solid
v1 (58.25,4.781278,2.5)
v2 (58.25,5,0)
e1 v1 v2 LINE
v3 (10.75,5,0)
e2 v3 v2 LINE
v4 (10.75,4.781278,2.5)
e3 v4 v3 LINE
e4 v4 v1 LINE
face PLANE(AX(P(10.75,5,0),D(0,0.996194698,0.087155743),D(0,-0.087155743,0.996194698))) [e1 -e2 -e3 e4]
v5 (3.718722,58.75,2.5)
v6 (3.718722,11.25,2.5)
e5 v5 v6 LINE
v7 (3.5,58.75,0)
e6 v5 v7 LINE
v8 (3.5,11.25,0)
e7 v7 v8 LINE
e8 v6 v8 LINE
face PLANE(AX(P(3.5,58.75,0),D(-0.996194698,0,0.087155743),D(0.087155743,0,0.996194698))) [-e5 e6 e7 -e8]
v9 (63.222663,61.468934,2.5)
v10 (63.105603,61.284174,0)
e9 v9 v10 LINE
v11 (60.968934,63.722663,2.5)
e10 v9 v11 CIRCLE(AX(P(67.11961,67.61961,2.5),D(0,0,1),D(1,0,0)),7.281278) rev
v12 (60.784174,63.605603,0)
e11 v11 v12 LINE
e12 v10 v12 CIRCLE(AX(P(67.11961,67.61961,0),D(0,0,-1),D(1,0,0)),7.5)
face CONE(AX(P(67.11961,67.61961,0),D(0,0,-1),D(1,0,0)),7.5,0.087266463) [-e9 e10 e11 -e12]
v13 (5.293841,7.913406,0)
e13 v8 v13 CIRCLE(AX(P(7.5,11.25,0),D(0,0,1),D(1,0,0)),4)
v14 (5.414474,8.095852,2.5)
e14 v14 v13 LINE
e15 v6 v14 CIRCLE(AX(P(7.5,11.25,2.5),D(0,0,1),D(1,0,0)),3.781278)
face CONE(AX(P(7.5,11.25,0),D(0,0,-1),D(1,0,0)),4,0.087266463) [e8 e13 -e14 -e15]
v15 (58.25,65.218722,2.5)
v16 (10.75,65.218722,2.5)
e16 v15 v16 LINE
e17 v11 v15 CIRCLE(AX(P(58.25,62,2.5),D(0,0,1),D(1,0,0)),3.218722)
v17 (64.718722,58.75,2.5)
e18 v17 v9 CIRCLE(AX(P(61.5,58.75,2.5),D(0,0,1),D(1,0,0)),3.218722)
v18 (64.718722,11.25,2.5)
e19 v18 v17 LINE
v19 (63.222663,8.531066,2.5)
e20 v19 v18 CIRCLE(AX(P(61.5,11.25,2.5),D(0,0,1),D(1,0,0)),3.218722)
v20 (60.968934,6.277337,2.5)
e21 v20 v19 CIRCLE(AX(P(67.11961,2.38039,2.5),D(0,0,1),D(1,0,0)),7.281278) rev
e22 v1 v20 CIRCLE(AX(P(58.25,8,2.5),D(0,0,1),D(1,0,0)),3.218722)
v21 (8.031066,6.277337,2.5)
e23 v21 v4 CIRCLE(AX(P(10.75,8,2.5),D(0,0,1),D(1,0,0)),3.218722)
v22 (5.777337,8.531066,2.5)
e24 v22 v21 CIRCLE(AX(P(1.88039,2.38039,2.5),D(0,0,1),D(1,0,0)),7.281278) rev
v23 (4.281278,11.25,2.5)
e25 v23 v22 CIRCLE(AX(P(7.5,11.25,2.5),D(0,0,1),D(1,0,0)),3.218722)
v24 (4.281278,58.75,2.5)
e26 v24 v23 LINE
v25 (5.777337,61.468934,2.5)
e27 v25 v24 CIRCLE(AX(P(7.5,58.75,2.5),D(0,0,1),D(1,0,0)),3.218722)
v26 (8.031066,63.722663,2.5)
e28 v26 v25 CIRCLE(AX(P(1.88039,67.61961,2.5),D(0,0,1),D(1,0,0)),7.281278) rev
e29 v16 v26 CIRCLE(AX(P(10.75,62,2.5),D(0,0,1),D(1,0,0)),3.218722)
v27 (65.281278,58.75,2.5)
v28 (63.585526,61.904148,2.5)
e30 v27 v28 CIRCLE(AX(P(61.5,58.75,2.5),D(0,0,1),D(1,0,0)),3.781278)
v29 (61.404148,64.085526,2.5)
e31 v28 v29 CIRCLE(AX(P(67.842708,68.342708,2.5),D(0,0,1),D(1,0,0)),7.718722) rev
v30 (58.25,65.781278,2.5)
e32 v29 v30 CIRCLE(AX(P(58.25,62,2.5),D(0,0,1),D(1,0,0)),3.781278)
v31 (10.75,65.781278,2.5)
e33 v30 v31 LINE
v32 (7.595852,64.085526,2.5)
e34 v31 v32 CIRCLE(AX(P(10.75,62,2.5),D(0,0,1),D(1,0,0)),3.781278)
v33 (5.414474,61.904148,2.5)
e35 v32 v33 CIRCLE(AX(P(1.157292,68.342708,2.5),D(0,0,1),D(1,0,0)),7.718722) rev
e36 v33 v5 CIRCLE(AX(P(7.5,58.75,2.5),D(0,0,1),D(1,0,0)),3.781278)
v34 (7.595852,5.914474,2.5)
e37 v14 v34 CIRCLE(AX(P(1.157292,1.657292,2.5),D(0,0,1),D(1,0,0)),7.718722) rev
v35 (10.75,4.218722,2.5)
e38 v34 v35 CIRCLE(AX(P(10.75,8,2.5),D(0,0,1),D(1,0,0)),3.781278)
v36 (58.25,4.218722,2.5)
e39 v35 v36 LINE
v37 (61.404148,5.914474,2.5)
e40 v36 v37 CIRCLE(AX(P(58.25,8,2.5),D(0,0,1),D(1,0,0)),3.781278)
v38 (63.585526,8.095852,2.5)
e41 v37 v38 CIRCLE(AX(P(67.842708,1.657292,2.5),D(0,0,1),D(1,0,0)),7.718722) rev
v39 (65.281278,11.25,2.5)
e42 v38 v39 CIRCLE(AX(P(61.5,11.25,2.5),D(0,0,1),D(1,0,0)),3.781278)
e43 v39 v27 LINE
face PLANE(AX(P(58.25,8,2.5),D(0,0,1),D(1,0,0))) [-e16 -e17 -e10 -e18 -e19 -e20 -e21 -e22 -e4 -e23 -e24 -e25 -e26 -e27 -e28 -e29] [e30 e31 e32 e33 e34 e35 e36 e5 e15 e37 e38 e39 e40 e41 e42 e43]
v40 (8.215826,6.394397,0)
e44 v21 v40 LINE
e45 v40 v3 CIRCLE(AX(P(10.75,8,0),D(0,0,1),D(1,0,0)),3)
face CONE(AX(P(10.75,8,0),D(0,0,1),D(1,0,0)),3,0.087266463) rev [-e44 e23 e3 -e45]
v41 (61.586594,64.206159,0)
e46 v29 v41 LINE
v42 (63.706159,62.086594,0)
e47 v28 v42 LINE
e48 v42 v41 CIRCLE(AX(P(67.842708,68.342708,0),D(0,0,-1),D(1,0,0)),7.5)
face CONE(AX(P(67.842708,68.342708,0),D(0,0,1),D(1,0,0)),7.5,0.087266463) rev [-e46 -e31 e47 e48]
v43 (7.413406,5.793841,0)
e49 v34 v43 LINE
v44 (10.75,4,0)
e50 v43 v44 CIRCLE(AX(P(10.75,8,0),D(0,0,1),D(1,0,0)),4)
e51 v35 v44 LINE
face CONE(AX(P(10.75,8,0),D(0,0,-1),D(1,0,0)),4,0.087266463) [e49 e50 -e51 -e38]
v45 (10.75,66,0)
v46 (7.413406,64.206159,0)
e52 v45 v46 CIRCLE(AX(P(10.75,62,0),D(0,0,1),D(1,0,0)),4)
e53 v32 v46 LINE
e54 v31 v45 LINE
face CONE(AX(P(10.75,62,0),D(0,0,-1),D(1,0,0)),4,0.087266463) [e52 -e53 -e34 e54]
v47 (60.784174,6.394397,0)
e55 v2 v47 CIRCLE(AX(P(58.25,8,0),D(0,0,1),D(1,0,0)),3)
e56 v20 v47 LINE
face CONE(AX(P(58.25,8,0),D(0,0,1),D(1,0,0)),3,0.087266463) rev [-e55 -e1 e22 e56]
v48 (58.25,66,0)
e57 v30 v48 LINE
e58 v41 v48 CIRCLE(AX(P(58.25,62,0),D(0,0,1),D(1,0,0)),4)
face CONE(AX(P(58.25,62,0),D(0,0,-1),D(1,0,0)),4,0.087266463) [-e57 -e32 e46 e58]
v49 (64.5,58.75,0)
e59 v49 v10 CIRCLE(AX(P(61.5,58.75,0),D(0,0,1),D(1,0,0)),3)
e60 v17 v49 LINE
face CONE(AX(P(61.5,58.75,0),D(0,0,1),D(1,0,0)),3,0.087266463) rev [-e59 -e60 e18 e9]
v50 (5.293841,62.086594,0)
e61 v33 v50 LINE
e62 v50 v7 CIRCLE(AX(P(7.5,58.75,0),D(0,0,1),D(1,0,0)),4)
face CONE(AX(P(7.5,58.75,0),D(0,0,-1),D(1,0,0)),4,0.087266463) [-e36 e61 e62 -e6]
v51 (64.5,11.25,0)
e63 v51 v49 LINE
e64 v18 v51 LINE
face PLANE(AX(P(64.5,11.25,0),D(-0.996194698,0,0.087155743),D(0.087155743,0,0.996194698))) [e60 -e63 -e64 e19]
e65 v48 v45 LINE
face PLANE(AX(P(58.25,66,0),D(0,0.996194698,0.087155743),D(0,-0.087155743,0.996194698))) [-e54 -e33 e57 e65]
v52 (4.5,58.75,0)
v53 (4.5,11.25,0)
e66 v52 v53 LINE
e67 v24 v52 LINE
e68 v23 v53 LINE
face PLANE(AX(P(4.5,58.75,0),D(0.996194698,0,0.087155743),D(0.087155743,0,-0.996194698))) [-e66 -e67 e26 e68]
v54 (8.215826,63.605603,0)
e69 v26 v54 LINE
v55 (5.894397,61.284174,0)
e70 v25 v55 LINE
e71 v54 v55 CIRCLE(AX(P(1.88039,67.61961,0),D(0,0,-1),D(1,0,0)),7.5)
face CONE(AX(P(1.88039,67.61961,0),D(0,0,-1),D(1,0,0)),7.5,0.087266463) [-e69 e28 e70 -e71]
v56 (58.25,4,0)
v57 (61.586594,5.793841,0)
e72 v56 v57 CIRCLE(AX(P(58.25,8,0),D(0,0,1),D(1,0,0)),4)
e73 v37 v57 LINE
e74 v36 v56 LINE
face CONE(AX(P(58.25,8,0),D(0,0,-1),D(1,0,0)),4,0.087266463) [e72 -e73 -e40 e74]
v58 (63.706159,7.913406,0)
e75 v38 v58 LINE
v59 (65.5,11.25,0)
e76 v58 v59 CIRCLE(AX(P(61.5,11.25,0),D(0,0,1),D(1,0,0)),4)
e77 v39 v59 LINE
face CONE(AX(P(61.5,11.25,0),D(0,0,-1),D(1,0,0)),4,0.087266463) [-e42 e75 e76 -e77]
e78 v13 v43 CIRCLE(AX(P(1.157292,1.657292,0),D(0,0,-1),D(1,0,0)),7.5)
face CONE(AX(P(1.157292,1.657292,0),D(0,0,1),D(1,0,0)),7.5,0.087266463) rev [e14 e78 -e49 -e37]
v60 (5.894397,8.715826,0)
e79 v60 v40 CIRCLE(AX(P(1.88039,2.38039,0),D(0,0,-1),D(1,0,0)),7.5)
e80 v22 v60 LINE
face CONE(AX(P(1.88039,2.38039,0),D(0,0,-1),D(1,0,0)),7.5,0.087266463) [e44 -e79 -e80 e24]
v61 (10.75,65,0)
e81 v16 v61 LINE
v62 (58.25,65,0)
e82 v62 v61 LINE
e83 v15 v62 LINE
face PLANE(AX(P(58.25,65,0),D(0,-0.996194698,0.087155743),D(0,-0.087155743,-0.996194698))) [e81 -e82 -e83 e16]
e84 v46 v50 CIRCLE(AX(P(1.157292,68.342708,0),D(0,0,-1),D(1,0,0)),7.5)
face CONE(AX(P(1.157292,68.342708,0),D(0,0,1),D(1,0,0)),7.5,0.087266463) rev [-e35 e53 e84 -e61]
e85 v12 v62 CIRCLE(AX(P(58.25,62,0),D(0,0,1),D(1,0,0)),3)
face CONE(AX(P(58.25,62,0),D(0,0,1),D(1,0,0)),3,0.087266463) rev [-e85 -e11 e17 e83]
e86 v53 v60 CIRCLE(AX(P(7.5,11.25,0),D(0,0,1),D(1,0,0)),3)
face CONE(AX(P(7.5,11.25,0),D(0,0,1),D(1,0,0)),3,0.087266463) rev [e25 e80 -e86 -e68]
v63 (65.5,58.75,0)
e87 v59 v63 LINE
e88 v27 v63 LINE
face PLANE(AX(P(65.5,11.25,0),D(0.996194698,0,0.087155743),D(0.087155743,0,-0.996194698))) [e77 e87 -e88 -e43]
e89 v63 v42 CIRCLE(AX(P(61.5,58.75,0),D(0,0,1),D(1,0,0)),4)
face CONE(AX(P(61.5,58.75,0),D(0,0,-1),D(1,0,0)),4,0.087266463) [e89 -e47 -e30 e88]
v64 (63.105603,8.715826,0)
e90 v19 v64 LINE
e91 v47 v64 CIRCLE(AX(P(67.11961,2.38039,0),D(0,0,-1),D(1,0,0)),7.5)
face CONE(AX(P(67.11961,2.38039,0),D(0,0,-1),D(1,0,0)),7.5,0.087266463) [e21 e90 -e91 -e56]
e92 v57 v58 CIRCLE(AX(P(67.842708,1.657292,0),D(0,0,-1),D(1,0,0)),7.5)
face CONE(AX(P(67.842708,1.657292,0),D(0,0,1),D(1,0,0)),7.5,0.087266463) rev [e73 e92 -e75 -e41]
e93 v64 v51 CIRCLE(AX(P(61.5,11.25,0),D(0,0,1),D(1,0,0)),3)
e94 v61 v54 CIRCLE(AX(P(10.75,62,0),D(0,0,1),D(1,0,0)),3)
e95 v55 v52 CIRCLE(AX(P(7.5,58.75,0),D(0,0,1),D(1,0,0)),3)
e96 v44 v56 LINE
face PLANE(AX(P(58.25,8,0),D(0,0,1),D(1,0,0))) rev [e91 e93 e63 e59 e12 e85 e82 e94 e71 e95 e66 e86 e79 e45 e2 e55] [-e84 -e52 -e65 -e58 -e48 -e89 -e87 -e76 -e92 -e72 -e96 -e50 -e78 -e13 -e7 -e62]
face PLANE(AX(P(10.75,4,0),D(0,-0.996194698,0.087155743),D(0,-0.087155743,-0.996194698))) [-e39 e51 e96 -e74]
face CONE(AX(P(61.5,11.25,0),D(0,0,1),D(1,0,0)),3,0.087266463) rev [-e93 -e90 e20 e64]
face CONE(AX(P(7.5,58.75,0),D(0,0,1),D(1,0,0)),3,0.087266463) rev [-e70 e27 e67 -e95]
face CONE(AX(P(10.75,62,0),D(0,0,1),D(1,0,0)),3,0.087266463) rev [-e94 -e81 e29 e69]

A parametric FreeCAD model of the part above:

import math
import FreeCAD as App
import Part
import Sketcher
from FreeCAD import Vector


def faces_at(feature, points):
    """Names of the faces that lie closest to the given points."""
    faces = feature.Shape.Faces
    near = lambda p: min(range(len(faces)), key=lambda i: faces[i].distToShape(Part.Vertex(*p))[0])
    return sorted({f"Face{near(p) + 1}" for p in points})

doc = App.newDocument("Part")
body = doc.addObject("PartDesign::Body", "Body")

# Sketch on XY plane
sketch1 = body.newObject("Sketcher::SketchObject", "Sketch")
sketch1.AttachmentSupport = (doc.getObject("XY_Plane"), [""])
sketch1.MapMode = "FlatFace"
sketch1.addGeometry([
    Part.LineSegment(Vector(65.5, 11.25, 0), Vector(65.5, 58.75, 0)),  # 0
    Part.ArcOfCircle(Part.Circle(Vector(61.5, 58.75, 0), Vector(0, 0, 1), 4), math.radians(0), math.radians(56.527283)),  # 1
    Part.ArcOfCircle(Part.Circle(Vector(67.842708, 68.342708, 0), Vector(0, 0, 1), 7.5), math.radians(-146.527283), math.radians(-123.472717)),  # 2
    Part.ArcOfCircle(Part.Circle(Vector(58.25, 62, 0), Vector(0, 0, 1), 4), math.radians(33.472717), math.radians(90)),  # 3
    Part.LineSegment(Vector(58.25, 66, 0), Vector(10.75, 66, 0)),  # 4
    Part.ArcOfCircle(Part.Circle(Vector(10.75, 62, 0), Vector(0, 0, 1), 4), math.radians(90), math.radians(146.527283)),  # 5
    Part.ArcOfCircle(Part.Circle(Vector(1.157292, 68.342708, 0), Vector(0, 0, 1), 7.5), math.radians(-56.527283), math.radians(-33.472717)),  # 6
    Part.ArcOfCircle(Part.Circle(Vector(7.5, 58.75, 0), Vector(0, 0, 1), 4), math.radians(123.472717), math.radians(180)),  # 7
    Part.LineSegment(Vector(3.5, 58.75, 0), Vector(3.5, 11.25, 0)),  # 8
    Part.ArcOfCircle(Part.Circle(Vector(7.5, 11.25, 0), Vector(0, 0, 1), 4), math.radians(-180), math.radians(-123.472717)),  # 9
    Part.ArcOfCircle(Part.Circle(Vector(1.157292, 1.657292, 0), Vector(0, 0, 1), 7.5), math.radians(33.472717), math.radians(56.527283)),  # 10
    Part.ArcOfCircle(Part.Circle(Vector(10.75, 8, 0), Vector(0, 0, 1), 4), math.radians(-146.527283), math.radians(-90)),  # 11
    Part.LineSegment(Vector(10.75, 4, 0), Vector(58.25, 4, 0)),  # 12
    Part.ArcOfCircle(Part.Circle(Vector(58.25, 8, 0), Vector(0, 0, 1), 4), math.radians(-90), math.radians(-33.472717)),  # 13
    Part.ArcOfCircle(Part.Circle(Vector(67.842708, 1.657292, 0), Vector(0, 0, 1), 7.5), math.radians(123.472717), math.radians(146.527283)),  # 14
    Part.ArcOfCircle(Part.Circle(Vector(61.5, 11.25, 0), Vector(0, 0, 1), 4), math.radians(-56.527283), math.radians(0)),  # 15
    Part.LineSegment(Vector(64.5, 58.75, 0), Vector(64.5, 11.25, 0)),  # 16
    Part.ArcOfCircle(Part.Circle(Vector(61.5, 11.25, 0), Vector(0, 0, 1), 3), math.radians(-57.642459), math.radians(0)),  # 17
    Part.ArcOfCircle(Part.Circle(Vector(67.11961, 2.38039, 0), Vector(0, 0, 1), 7.5), math.radians(122.357541), math.radians(147.642459)),  # 18
    Part.ArcOfCircle(Part.Circle(Vector(58.25, 8, 0), Vector(0, 0, 1), 3), math.radians(-90), math.radians(-32.357541)),  # 19
    Part.LineSegment(Vector(58.25, 5, 0), Vector(10.75, 5, 0)),  # 20
    Part.ArcOfCircle(Part.Circle(Vector(10.75, 8, 0), Vector(0, 0, 1), 3), math.radians(-147.642459), math.radians(-90)),  # 21
    Part.ArcOfCircle(Part.Circle(Vector(1.88039, 2.38039, 0), Vector(0, 0, 1), 7.5), math.radians(32.357541), math.radians(57.642459)),  # 22
    Part.ArcOfCircle(Part.Circle(Vector(7.5, 11.25, 0), Vector(0, 0, 1), 3), math.radians(180), math.radians(237.642459)),  # 23
    Part.LineSegment(Vector(4.5, 11.25, 0), Vector(4.5, 58.75, 0)),  # 24
    Part.ArcOfCircle(Part.Circle(Vector(7.5, 58.75, 0), Vector(0, 0, 1), 3), math.radians(122.357541), math.radians(180)),  # 25
    Part.ArcOfCircle(Part.Circle(Vector(1.88039, 67.61961, 0), Vector(0, 0, 1), 7.5), math.radians(-57.642459), math.radians(-32.357541)),  # 26
    Part.ArcOfCircle(Part.Circle(Vector(10.75, 62, 0), Vector(0, 0, 1), 3), math.radians(90), math.radians(147.642459)),  # 27
    Part.LineSegment(Vector(10.75, 65, 0), Vector(58.25, 65, 0)),  # 28
    Part.ArcOfCircle(Part.Circle(Vector(58.25, 62, 0), Vector(0, 0, 1), 3), math.radians(32.357541), math.radians(90)),  # 29
    Part.ArcOfCircle(Part.Circle(Vector(67.11961, 67.61961, 0), Vector(0, 0, 1), 7.5), math.radians(-147.642459), math.radians(-122.357541)),  # 30
    Part.ArcOfCircle(Part.Circle(Vector(61.5, 58.75, 0), Vector(0, 0, 1), 3), math.radians(0), math.radians(57.642459)),  # 31
], False)
sketch1.addConstraint([
    Sketcher.Constraint("Tangent", 0, 2, 1, 1),
    Sketcher.Constraint("Tangent", 1, 2, 2, 2),
    Sketcher.Constraint("Tangent", 2, 1, 3, 1),
    Sketcher.Constraint("Tangent", 3, 2, 4, 1),
    Sketcher.Constraint("Tangent", 4, 2, 5, 1),
    Sketcher.Constraint("Tangent", 5, 2, 6, 2),
    Sketcher.Constraint("Tangent", 6, 1, 7, 1),
    Sketcher.Constraint("Tangent", 7, 2, 8, 1),
    Sketcher.Constraint("Tangent", 8, 2, 9, 1),
    Sketcher.Constraint("Tangent", 9, 2, 10, 2),
    Sketcher.Constraint("Tangent", 10, 1, 11, 1),
    Sketcher.Constraint("Tangent", 11, 2, 12, 1),
    Sketcher.Constraint("Tangent", 12, 2, 13, 1),
    Sketcher.Constraint("Tangent", 13, 2, 14, 2),
    Sketcher.Constraint("Tangent", 14, 1, 15, 1),
    Sketcher.Constraint("Tangent", 15, 2, 0, 1),
    Sketcher.Constraint("Tangent", 16, 2, 17, 2),
    Sketcher.Constraint("Tangent", 17, 1, 18, 1),
    Sketcher.Constraint("Tangent", 18, 2, 19, 2),
    Sketcher.Constraint("Tangent", 19, 1, 20, 1),
    Sketcher.Constraint("Tangent", 20, 2, 21, 2),
    Sketcher.Constraint("Tangent", 21, 1, 22, 1),
    Sketcher.Constraint("Tangent", 22, 2, 23, 2),
    Sketcher.Constraint("Tangent", 23, 1, 24, 1),
    Sketcher.Constraint("Tangent", 24, 2, 25, 2),
    Sketcher.Constraint("Tangent", 25, 1, 26, 1),
    Sketcher.Constraint("Tangent", 26, 2, 27, 2),
    Sketcher.Constraint("Tangent", 27, 1, 28, 1),
    Sketcher.Constraint("Tangent", 28, 2, 29, 2),
    Sketcher.Constraint("Tangent", 29, 1, 30, 1),
    Sketcher.Constraint("Tangent", 30, 2, 31, 2),
    Sketcher.Constraint("Tangent", 31, 1, 16, 1),
    Sketcher.Constraint("Vertical", 0),
    Sketcher.Constraint("Horizontal", 4),
    Sketcher.Constraint("Vertical", 8),
    Sketcher.Constraint("Horizontal", 12),
    Sketcher.Constraint("Vertical", 16),
    Sketcher.Constraint("Horizontal", 20),
    Sketcher.Constraint("Vertical", 24),
    Sketcher.Constraint("Horizontal", 28),
    Sketcher.Constraint("Coincident", 17, 3, 15, 3),
    Sketcher.Constraint("Coincident", 19, 3, 13, 3),
    Sketcher.Constraint("Coincident", 21, 3, 11, 3),
    Sketcher.Constraint("Coincident", 23, 3, 9, 3),
    Sketcher.Constraint("Coincident", 25, 3, 7, 3),
    Sketcher.Constraint("Coincident", 27, 3, 5, 3),
    Sketcher.Constraint("Coincident", 29, 3, 3, 3),
    Sketcher.Constraint("Coincident", 31, 3, 1, 3),
    Sketcher.Constraint("Equal", 1, 3),
    Sketcher.Constraint("Equal", 3, 5),
    Sketcher.Constraint("Equal", 2, 6),
    Sketcher.Constraint("Equal", 5, 7),
    Sketcher.Constraint("Equal", 7, 9),
    Sketcher.Constraint("Equal", 6, 10),
    Sketcher.Constraint("Equal", 9, 11),
    Sketcher.Constraint("Equal", 11, 13),
    Sketcher.Constraint("Equal", 10, 14),
    Sketcher.Constraint("Equal", 13, 15),
    Sketcher.Constraint("Equal", 14, 18),
    Sketcher.Constraint("Equal", 17, 19),
    Sketcher.Constraint("Equal", 18, 22),
    Sketcher.Constraint("Equal", 21, 23),
    Sketcher.Constraint("Equal", 22, 26),
    Sketcher.Constraint("Equal", 25, 27),
    Sketcher.Constraint("Equal", 26, 30),
    Sketcher.Constraint("Horizontal", 2, 3, 6, 3),
    Sketcher.Constraint("Horizontal", 1, 3, 7, 3),
    Sketcher.Constraint("Horizontal", 10, 3, 14, 3),
    Sketcher.Constraint("Horizontal", 9, 3, 15, 3),
    Sketcher.Constraint("Vertical", 6, 3, 10, 3),
    Sketcher.Constraint("Vertical", 5, 3, 11, 3),
    Sketcher.Constraint("Equal", 28, 0),
    Sketcher.Constraint("Radius", 1, 4.0),
    Sketcher.Constraint("Radius", 17, 3.0),
    Sketcher.Constraint("Radius", 2, 7.5),
    Sketcher.Constraint("DistanceX", 4, 2, 4, 1, 47.5),
    Sketcher.Constraint("DistanceY", -1, 1, 3, 3, 62.0),
    Sketcher.Constraint("DistanceY", -1, 1, 11, 3, 8.0),
    Sketcher.Constraint("DistanceX", 7, 3, 1, 3, 54.0),
    Sketcher.Constraint("DistanceX", -1, 1, 1, 3, 61.5),
])
pad1 = body.newObject("PartDesign::Pad", "Pad")
pad1.Profile = sketch1
pad1.Length = 2.5
doc.recompute()

draft = body.newObject("PartDesign::Draft", "Draft")
draft.Base = (pad1, faces_at(pad1, [
    (65.023, 9.356, 1.25),
    (65.5, 35, 1.25),
    (65.023, 60.644, 1.25),
    (62.539, 63.039, 1.25),
    (60.144, 65.523, 1.25),
    (34.5, 66, 1.25),
    (8.856, 65.523, 1.25),
    (6.461, 63.039, 1.25),
    (3.977, 60.644, 1.25),
    (3.5, 35, 1.25),
    (3.977, 9.356, 1.25),
    (6.461, 6.961, 1.25),
    (8.856, 4.477, 1.25),
    (34.5, 4, 1.25),
    (60.144, 4.477, 1.25),
    (62.539, 6.961, 1.25),
    (7.184, 7.684, 1.25),
    (4.872, 9.804, 1.25),
    (4.5, 35, 1.25),
    (4.872, 60.196, 1.25),
    (7.184, 62.316, 1.25),
    (9.304, 64.628, 1.25),
    (34.5, 65, 1.25),
    (59.696, 64.628, 1.25),
    (61.816, 62.316, 1.25),
    (64.128, 60.196, 1.25),
    (64.5, 35, 1.25),
    (64.128, 9.804, 1.25),
    (61.816, 7.684, 1.25),
    (59.696, 5.372, 1.25),
    (34.5, 5, 1.25),
    (9.304, 5.372, 1.25),
]))
draft.NeutralPlane = (doc.getObject("XY_Plane"), [""])
draft.Angle = 5
draft.Reversed = False

doc.recompute()
